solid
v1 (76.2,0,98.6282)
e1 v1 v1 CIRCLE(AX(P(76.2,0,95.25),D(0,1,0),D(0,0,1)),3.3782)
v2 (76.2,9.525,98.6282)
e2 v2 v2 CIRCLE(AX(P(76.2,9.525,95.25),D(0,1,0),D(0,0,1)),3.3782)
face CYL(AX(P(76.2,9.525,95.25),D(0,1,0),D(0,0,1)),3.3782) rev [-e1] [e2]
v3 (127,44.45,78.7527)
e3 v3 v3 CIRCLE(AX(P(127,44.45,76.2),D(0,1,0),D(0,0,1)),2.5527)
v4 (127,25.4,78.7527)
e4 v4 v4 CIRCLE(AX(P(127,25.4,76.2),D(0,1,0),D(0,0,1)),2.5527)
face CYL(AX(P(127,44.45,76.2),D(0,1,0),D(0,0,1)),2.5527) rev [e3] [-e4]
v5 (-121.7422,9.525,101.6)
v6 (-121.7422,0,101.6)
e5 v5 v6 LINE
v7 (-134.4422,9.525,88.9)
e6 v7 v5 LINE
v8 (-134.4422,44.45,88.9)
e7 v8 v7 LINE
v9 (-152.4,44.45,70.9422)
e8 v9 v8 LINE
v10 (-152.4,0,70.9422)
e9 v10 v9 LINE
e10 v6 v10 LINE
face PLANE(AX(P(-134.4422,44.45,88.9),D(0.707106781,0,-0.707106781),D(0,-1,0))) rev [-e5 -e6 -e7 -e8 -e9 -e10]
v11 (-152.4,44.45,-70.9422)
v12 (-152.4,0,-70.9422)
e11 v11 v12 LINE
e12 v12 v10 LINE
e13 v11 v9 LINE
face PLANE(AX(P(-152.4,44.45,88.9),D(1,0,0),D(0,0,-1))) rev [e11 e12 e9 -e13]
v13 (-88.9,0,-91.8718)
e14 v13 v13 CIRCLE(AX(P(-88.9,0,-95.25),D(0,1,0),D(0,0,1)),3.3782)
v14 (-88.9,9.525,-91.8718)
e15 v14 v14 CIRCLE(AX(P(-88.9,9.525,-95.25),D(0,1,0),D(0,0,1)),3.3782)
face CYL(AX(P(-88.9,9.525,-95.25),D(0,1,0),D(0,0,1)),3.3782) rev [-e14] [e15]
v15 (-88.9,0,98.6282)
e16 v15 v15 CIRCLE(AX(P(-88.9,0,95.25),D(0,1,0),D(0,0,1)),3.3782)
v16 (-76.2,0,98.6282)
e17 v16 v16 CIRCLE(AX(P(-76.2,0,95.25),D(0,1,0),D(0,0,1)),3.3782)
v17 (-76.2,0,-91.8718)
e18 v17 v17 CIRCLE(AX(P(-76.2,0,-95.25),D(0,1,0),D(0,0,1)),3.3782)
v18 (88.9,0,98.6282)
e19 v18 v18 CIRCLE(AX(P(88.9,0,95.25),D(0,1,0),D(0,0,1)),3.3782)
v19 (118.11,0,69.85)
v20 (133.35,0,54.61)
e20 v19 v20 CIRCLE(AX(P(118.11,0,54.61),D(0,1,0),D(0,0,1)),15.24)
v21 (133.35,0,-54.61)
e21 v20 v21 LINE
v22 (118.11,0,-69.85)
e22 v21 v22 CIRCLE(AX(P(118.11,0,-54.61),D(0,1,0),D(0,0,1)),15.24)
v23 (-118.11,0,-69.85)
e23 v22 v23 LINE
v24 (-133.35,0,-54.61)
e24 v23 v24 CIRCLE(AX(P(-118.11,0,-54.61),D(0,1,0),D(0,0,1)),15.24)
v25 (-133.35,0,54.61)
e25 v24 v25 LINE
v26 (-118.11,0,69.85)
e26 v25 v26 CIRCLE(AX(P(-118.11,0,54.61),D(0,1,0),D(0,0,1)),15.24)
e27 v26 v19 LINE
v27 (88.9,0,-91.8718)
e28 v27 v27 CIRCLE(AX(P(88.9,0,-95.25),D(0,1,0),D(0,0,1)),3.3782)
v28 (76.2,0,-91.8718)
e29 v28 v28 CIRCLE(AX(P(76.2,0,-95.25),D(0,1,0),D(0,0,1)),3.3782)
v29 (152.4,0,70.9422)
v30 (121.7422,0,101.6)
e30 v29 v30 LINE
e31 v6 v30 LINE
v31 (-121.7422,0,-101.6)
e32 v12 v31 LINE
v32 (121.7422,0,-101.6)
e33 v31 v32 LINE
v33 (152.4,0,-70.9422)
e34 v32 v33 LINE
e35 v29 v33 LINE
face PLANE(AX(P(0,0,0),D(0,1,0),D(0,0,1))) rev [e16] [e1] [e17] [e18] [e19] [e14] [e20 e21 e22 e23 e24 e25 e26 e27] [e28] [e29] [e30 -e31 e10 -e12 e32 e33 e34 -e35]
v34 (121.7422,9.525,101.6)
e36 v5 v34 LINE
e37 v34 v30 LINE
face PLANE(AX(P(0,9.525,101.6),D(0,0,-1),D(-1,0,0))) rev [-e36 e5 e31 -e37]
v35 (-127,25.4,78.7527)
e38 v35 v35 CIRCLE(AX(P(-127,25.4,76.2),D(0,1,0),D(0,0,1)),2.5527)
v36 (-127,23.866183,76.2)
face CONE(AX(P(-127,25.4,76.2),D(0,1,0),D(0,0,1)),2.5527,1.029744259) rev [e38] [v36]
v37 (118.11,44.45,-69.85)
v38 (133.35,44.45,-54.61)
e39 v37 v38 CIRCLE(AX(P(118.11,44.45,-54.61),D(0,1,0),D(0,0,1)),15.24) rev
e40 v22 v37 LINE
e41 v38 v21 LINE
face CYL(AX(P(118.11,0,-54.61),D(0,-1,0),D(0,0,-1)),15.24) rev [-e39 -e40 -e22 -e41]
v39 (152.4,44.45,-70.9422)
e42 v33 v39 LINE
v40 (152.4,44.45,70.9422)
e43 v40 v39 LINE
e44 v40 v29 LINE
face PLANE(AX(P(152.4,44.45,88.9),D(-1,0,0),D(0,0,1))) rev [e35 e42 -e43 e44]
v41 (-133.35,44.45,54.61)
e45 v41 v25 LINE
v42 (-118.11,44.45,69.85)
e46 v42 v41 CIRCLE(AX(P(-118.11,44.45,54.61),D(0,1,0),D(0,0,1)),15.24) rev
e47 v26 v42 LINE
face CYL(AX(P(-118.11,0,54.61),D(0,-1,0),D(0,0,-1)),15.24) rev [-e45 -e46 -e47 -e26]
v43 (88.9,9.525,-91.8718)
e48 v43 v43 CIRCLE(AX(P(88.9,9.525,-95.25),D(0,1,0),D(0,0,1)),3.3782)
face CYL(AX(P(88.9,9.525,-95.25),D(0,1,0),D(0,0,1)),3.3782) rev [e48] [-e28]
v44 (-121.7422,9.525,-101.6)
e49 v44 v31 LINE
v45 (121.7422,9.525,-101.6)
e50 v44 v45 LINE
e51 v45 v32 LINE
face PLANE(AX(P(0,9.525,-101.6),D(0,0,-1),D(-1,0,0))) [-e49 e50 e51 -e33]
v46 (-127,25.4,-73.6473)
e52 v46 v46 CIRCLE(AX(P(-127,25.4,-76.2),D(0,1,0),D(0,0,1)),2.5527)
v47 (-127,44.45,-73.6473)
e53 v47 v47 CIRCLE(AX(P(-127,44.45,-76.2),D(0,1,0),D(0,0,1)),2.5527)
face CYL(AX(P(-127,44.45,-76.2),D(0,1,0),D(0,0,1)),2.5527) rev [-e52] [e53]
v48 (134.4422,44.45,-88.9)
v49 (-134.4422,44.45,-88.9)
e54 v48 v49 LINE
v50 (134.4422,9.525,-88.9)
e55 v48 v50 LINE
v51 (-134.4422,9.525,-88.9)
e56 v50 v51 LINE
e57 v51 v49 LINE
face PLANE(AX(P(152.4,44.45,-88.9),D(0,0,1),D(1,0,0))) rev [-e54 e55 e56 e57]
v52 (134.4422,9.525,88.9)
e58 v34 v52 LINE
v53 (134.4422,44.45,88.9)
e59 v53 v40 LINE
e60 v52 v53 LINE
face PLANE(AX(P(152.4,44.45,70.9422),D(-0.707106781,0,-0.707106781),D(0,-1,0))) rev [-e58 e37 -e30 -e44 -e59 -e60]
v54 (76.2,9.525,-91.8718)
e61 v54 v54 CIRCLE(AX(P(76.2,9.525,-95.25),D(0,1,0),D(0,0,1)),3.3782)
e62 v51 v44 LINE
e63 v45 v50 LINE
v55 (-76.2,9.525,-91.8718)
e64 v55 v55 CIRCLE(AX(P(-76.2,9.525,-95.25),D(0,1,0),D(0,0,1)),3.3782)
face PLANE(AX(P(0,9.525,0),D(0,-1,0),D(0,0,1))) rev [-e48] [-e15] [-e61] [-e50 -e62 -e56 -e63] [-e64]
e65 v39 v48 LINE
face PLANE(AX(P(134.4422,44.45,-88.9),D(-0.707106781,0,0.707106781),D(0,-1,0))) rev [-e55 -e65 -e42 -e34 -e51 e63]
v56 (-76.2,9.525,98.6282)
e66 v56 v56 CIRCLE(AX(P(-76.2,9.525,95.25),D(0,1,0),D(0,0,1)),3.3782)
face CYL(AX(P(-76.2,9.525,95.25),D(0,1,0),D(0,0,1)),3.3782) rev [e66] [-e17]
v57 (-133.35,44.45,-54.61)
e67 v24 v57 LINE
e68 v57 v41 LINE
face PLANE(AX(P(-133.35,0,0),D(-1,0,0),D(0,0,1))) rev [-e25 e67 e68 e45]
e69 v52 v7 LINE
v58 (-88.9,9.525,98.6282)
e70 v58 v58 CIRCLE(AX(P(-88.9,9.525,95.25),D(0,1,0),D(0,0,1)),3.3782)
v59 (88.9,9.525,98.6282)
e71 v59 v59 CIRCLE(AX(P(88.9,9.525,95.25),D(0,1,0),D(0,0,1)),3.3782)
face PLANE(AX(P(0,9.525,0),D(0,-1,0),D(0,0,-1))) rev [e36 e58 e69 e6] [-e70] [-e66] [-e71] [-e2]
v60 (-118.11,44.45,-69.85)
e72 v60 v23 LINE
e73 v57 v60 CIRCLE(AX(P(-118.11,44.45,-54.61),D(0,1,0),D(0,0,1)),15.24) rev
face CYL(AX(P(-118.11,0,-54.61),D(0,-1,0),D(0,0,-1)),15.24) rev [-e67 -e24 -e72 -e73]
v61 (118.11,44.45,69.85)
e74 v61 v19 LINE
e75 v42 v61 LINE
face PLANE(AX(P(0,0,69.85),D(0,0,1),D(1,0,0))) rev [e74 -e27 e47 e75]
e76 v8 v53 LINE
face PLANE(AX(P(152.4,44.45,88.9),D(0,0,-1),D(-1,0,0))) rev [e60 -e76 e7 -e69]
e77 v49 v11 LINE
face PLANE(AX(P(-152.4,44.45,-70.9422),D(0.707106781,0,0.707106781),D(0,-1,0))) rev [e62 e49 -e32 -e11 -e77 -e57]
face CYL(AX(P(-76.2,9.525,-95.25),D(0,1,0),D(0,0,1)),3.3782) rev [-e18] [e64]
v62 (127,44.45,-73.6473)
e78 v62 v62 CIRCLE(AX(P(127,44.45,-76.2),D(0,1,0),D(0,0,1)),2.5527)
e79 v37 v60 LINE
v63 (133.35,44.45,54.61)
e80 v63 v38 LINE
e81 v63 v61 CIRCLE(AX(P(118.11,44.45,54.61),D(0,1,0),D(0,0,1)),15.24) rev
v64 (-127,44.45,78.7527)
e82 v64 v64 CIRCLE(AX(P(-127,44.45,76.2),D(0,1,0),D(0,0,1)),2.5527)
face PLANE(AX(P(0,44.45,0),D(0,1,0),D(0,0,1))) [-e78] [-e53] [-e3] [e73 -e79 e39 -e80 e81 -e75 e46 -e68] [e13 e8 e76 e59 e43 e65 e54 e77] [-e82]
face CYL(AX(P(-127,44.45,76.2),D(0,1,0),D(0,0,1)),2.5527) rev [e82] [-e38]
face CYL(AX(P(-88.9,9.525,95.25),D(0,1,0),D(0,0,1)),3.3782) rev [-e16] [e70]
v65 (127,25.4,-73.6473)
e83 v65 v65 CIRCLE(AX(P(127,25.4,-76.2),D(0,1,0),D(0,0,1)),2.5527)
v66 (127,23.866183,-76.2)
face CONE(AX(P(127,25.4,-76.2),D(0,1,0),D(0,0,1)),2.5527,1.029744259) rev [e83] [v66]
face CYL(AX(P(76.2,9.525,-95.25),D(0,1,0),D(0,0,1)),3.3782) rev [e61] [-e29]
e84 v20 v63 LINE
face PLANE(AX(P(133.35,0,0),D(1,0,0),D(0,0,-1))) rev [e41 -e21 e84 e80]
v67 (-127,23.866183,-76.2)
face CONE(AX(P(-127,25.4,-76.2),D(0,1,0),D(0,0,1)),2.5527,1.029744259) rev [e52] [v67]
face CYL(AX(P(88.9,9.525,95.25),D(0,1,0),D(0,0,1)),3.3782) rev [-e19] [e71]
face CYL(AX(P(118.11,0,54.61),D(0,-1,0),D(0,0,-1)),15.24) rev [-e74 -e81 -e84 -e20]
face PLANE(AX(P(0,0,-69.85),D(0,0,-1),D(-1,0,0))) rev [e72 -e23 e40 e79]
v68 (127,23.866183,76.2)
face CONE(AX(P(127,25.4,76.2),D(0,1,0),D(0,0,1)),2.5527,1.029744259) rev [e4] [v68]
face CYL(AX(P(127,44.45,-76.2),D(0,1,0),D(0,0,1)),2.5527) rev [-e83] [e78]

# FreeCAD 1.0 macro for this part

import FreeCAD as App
import Part
import Sketcher
from FreeCAD import Vector
Q = App.Units.Quantity


def edges_at(feature, points):
    """Names of the edges that pass closest to the given points."""
    edges = feature.Shape.Edges
    near = lambda p: min(range(len(edges)), key=lambda i: edges[i].distToShape(Part.Vertex(*p))[0])
    return sorted({f"Edge{near(p) + 1}" for p in points})

doc = App.newDocument("Part")
body = doc.addObject("PartDesign::Body", "Body")

# Sketch on XZ plane
sketch1 = doc.addObject("Sketcher::SketchObject", "Sketch")
body.addObject(sketch1)
sketch1.AttachmentSupport = (doc.XZ_Plane, [""])
sketch1.MapMode = "FlatFace"
sketch1.addGeometry(Part.LineSegment(Vector(-152, -89, 0), Vector(-152, 89, 0)), False)
sketch1.addGeometry(Part.LineSegment(Vector(-152, 89, 0), Vector(152, 89, 0)), False)
sketch1.addGeometry(Part.LineSegment(Vector(152, 89, 0), Vector(152, -89, 0)), False)
sketch1.addGeometry(Part.LineSegment(Vector(152, -89, 0), Vector(-152, -89, 0)), False)
sketch1.addConstraint(Sketcher.Constraint("Coincident", 0, 2, 1, 1))
sketch1.addConstraint(Sketcher.Constraint("Coincident", 1, 2, 2, 1))
sketch1.addConstraint(Sketcher.Constraint("Coincident", 2, 2, 3, 1))
sketch1.addConstraint(Sketcher.Constraint("Coincident", 3, 2, 0, 1))
sketch1.addConstraint(Sketcher.Constraint("Vertical", 0))
sketch1.addConstraint(Sketcher.Constraint("Horizontal", 1))
sketch1.addConstraint(Sketcher.Constraint("Vertical", 2))
sketch1.addConstraint(Sketcher.Constraint("Horizontal", 3))
sketch1.addConstraint(Sketcher.Constraint("Symmetric", 0, 2, 2, 2, -1, 1))
sketch1.addConstraint(Sketcher.Constraint("DistanceX", 1, 1, 1, 2, Q("12 in")))
sketch1.addConstraint(Sketcher.Constraint("DistanceY", 0, 1, 0, 2, Q("7 in")))
pad1 = doc.addObject("PartDesign::Pad", "Pad")
body.addObject(pad1)
pad1.Profile = sketch1
pad1.Length = Q("1.75 in")
pad1.Reversed = True
doc.recompute()

chamfer = doc.addObject("PartDesign::Chamfer", "Chamfer")
body.addObject(chamfer)
chamfer.Base = (pad1, edges_at(pad1, [
    (-152.4, 22.225, -88.9),
    (152.4, 22.225, -88.9),
    (152.4, 22.225, 88.9),
    (-152.4, 22.225, 88.9),
]))
chamfer.Size = Q("0.707 in")

# Sketch on XZ plane
sketch2 = doc.addObject("Sketcher::SketchObject", "Sketch001")
body.addObject(sketch2)
sketch2.AttachmentSupport = (doc.XZ_Plane, [""])
sketch2.MapMode = "FlatFace"
sketch2.AttachmentOffset = App.Placement(Vector(0, 0, -1.75 * 25.4), App.Rotation())
sketch2.addGeometry(Part.LineSegment(Vector(-133, -70, 0), Vector(-133, 70, 0)), False)
sketch2.addGeometry(Part.LineSegment(Vector(-133, 70, 0), Vector(133, 70, 0)), False)
sketch2.addGeometry(Part.LineSegment(Vector(133, 70, 0), Vector(133, -70, 0)), False)
sketch2.addGeometry(Part.LineSegment(Vector(133, -70, 0), Vector(-133, -70, 0)), False)
sketch2.addConstraint(Sketcher.Constraint("Coincident", 0, 2, 1, 1))
sketch2.addConstraint(Sketcher.Constraint("Coincident", 1, 2, 2, 1))
sketch2.addConstraint(Sketcher.Constraint("Coincident", 2, 2, 3, 1))
sketch2.addConstraint(Sketcher.Constraint("Coincident", 3, 2, 0, 1))
sketch2.addConstraint(Sketcher.Constraint("Vertical", 0))
sketch2.addConstraint(Sketcher.Constraint("Horizontal", 1))
sketch2.addConstraint(Sketcher.Constraint("Vertical", 2))
sketch2.addConstraint(Sketcher.Constraint("Horizontal", 3))
sketch2.addConstraint(Sketcher.Constraint("Symmetric", 0, 2, 2, 2, -1, 1))
sketch2.addConstraint(Sketcher.Constraint("DistanceX", 1, 1, 1, 2, Q("10.5 in")))
sketch2.addConstraint(Sketcher.Constraint("DistanceY", 0, 1, 0, 2, Q("5.5 in")))
pocket1 = doc.addObject("PartDesign::Pocket", "Pocket")
body.addObject(pocket1)
pocket1.Profile = sketch2
pocket1.Type = "ThroughAll"
pocket1.Reversed = True

# Sketch on XZ plane
sketch3 = doc.addObject("Sketcher::SketchObject", "Sketch002")
body.addObject(sketch3)
sketch3.AttachmentSupport = (doc.XZ_Plane, [""])
sketch3.MapMode = "FlatFace"
sketch3.AttachmentOffset = App.Placement(Vector(0, 0, -1.75 * 25.4), App.Rotation())
sketch3.addGeometry(Part.Circle(Vector(-127, -76.2, 0), Vector(0, 0, 1), 2.6), False)
sketch3.addGeometry(Part.Circle(Vector(127, -76.2, 0), Vector(0, 0, 1), 2.6), False)
sketch3.addGeometry(Part.Circle(Vector(127, 76.2, 0), Vector(0, 0, 1), 2.6), False)
sketch3.addGeometry(Part.Circle(Vector(-127, 76.2, 0), Vector(0, 0, 1), 2.6), False)
sketch3.addConstraint(Sketcher.Constraint("Equal", 0, 1))
sketch3.addConstraint(Sketcher.Constraint("Equal", 1, 2))
sketch3.addConstraint(Sketcher.Constraint("Equal", 2, 3))
sketch3.addConstraint(Sketcher.Constraint("Symmetric", 0, 3, 2, 3, -1, 1))
sketch3.addConstraint(Sketcher.Constraint("Symmetric", 1, 3, 3, 3, -1, 1))
sketch3.addConstraint(Sketcher.Constraint("Symmetric", 0, 3, 1, 3, -2))
sketch3.addConstraint(Sketcher.Constraint("Diameter", 0, Q("0.201 in")))
sketch3.addConstraint(Sketcher.Constraint("DistanceX", 0, 3, -1, 1, Q("5 in")))
sketch3.addConstraint(Sketcher.Constraint("DistanceY", 0, 3, -1, 1, Q("3 in")))
doc.recompute()
hole = doc.addObject("PartDesign::Hole", "Hole")
body.addObject(hole)
hole.Profile = sketch3
hole.ThreadType = "None"
hole.Diameter = Q("0.201 in")
hole.DepthType = "Dimension"
hole.Depth = Q("0.75 in")
hole.DrillPoint = "Angled"
hole.DrillPointAngle = 118
hole.Reversed = True

# Sketch on XZ plane
sketch4 = doc.addObject("Sketcher::SketchObject", "Sketch003")
body.addObject(sketch4)
sketch4.AttachmentSupport = (doc.XZ_Plane, [""])
sketch4.MapMode = "FlatFace"
sketch4.addGeometry(Part.LineSegment(Vector(134, 89, 0), Vector(122, 102, 0)), False)
sketch4.addGeometry(Part.LineSegment(Vector(122, 102, 0), Vector(-122, 102, 0)), False)
sketch4.addGeometry(Part.LineSegment(Vector(-122, 102, 0), Vector(-134, 89, 0)), False)
sketch4.addGeometry(Part.LineSegment(Vector(-134, 89, 0), Vector(134, 89, 0)), False)
sketch4.addConstraint(Sketcher.Constraint("Coincident", 0, 2, 1, 1))
sketch4.addConstraint(Sketcher.Constraint("Coincident", 1, 2, 2, 1))
sketch4.addConstraint(Sketcher.Constraint("Coincident", 2, 2, 3, 1))
sketch4.addConstraint(Sketcher.Constraint("Coincident", 3, 2, 0, 1))
sketch4.addConstraint(Sketcher.Constraint("Horizontal", 1))
sketch4.addConstraint(Sketcher.Constraint("Horizontal", 3))
sketch4.addConstraint(Sketcher.Constraint("Perpendicular", 0, 2))
sketch4.addConstraint(Sketcher.Constraint("Equal", 0, 2))
sketch4.addConstraint(Sketcher.Constraint("DistanceY", -1, 1, 0, 2, Q("4 in")))
sketch4.addConstraint(Sketcher.Constraint("DistanceY", -1, 1, 2, 2, Q("3.5 in")))
sketch4.addConstraint(Sketcher.Constraint("DistanceX", 1, 2, 1, 1, Q("9.586 in")))
sketch4.addConstraint(Sketcher.Constraint("DistanceX", -1, 1, 0, 2, Q("4.793 in")))
pad2 = doc.addObject("PartDesign::Pad", "Pad001")
body.addObject(pad2)
pad2.Profile = sketch4
pad2.Length = Q("0.375 in")
pad2.Reversed = True

# Sketch on XZ plane
sketch5 = doc.addObject("Sketcher::SketchObject", "Sketch004")
body.addObject(sketch5)
sketch5.AttachmentSupport = (doc.XZ_Plane, [""])
sketch5.MapMode = "FlatFace"
sketch5.AttachmentOffset = App.Placement(Vector(0, 0, -0.375 * 25.4), App.Rotation())
sketch5.addGeometry(Part.Circle(Vector(-88.9, 95.2, 0), Vector(0, 0, 1), 3.4), False)
sketch5.addGeometry(Part.Circle(Vector(88.9, 95.2, 0), Vector(0, 0, 1), 3.4), False)
sketch5.addGeometry(Part.Circle(Vector(-76.2, 95.2, 0), Vector(0, 0, 1), 3.4), False)
sketch5.addGeometry(Part.Circle(Vector(76.2, 95.2, 0), Vector(0, 0, 1), 3.4), False)
sketch5.addConstraint(Sketcher.Constraint("Equal", 0, 1))
sketch5.addConstraint(Sketcher.Constraint("Equal", 1, 2))
sketch5.addConstraint(Sketcher.Constraint("Equal", 2, 3))
sketch5.addConstraint(Sketcher.Constraint("Symmetric", 0, 3, 1, 3, -2))
sketch5.addConstraint(Sketcher.Constraint("Symmetric", 2, 3, 3, 3, -2))
sketch5.addConstraint(Sketcher.Constraint("Horizontal", 1, 3, 2, 3))
sketch5.addConstraint(Sketcher.Constraint("Diameter", 0, Q("0.266 in")))
sketch5.addConstraint(Sketcher.Constraint("DistanceX", 2, 3, -1, 1, Q("3 in")))
sketch5.addConstraint(Sketcher.Constraint("DistanceX", 0, 3, 1, 3, Q("7 in")))
sketch5.addConstraint(Sketcher.Constraint("DistanceY", -1, 1, 0, 3, Q("3.75 in")))
doc.recompute()
hole2 = doc.addObject("PartDesign::Hole", "Hole001")
body.addObject(hole2)
hole2.Profile = sketch5
hole2.ThreadType = "None"
hole2.Diameter = Q("0.266 in")
hole2.DepthType = "ThroughAll"
hole2.Reversed = True
doc.recompute()

mirrored = doc.addObject("PartDesign::Mirrored", "Mirrored")
body.addObject(mirrored)
mirrored.Originals = [pad2, hole2]
mirrored.MirrorPlane = (doc.XY_Plane, [""])
body.Tip = mirrored
doc.recompute()

fillet = doc.addObject("PartDesign::Fillet", "Fillet")
body.addObject(fillet)
fillet.Base = (mirrored, edges_at(mirrored, [
    (133.35, 22.225, -69.85),
    (133.35, 22.225, 69.85),
    (-133.35, 22.225, 69.85),
    (-133.35, 22.225, -69.85),
]))
fillet.Radius = Q("0.6 in")

doc.recompute()
